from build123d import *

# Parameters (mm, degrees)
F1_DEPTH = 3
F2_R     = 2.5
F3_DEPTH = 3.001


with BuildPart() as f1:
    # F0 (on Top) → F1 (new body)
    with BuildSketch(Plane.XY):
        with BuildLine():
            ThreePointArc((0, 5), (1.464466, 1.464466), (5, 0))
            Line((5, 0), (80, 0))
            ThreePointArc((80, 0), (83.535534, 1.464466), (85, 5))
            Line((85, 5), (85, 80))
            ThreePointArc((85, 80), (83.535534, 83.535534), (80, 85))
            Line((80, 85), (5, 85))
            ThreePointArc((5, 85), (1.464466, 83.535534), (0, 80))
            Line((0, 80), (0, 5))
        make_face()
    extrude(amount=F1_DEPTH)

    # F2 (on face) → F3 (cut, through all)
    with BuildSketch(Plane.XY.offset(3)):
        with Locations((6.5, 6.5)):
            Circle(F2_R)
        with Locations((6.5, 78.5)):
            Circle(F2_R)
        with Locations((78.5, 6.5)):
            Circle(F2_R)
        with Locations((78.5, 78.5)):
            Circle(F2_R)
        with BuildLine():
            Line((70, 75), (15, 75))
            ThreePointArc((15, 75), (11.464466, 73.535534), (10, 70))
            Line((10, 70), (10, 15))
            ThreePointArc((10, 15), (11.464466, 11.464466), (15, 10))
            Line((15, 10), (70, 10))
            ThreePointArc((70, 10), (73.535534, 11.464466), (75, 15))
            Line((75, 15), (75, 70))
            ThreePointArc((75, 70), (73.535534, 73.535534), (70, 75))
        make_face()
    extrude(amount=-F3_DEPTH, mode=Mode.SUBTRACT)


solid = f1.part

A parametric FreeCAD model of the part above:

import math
import FreeCAD as App
import Part
import Sketcher
from FreeCAD import Vector
Q = App.Units.Quantity

doc = App.newDocument("Part")
params = doc.addObject("Spreadsheet::Sheet", "Params")
for row, (alias, value) in enumerate([
    ("sketch1_radius", "5 mm"),
    ("sketch1_width", "75 mm"),
    ("pad1_length", "3 mm"),
    ("sketch2_diameter", "5 mm"),
    ("sketch2_radius", "5 mm"),
    ("sketch2_width", "55 mm"),
], start=1):
    params.set(f"A{row}", alias)
    params.set(f"B{row}", "=" + value)
    params.setAlias(f"B{row}", alias)

body = doc.addObject("PartDesign::Body", "Body")

sketch1 = body.newObject("Sketcher::SketchObject", "Sketch")
sketch1.AttachmentSupport = (doc.getObject("XY_Plane"), [""])
sketch1.MapMode = "FlatFace"
sketch1.addGeometry([
    Part.ArcOfCircle(Part.Circle(Vector(5, 5, 0), Vector(0, 0, 1), 5), math.radians(180), math.radians(270)),
    Part.LineSegment(Vector(5, 0, 0), Vector(80, 0, 0)),
    Part.ArcOfCircle(Part.Circle(Vector(80, 5, 0), Vector(0, 0, 1), 5), math.radians(-90), math.radians(0)),
    Part.LineSegment(Vector(85, 5, 0), Vector(85, 80, 0)),
    Part.ArcOfCircle(Part.Circle(Vector(80, 80, 0), Vector(0, 0, 1), 5), math.radians(0), math.radians(90)),
    Part.LineSegment(Vector(80, 85, 0), Vector(5, 85, 0)),
    Part.ArcOfCircle(Part.Circle(Vector(5, 80, 0), Vector(0, 0, 1), 5), math.radians(90), math.radians(180)),
    Part.LineSegment(Vector(0, 80, 0), Vector(0, 5, 0)),
], False)
sketch1.addConstraint([
    Sketcher.Constraint("Tangent", 0, 2, 1, 1),
    Sketcher.Constraint("Tangent", 1, 2, 2, 1),
    Sketcher.Constraint("Tangent", 2, 2, 3, 1),
    Sketcher.Constraint("Tangent", 3, 2, 4, 1),
    Sketcher.Constraint("Tangent", 4, 2, 5, 1),
    Sketcher.Constraint("Tangent", 5, 2, 6, 1),
    Sketcher.Constraint("Tangent", 6, 2, 7, 1),
    Sketcher.Constraint("Tangent", 7, 2, 0, 1),
    Sketcher.Constraint("Horizontal", 1),
    Sketcher.Constraint("Vertical", 3),
    Sketcher.Constraint("Horizontal", 5),
    Sketcher.Constraint("Vertical", 7),
    Sketcher.Constraint("Equal", 0, 2),
    Sketcher.Constraint("Equal", 2, 4),
    Sketcher.Constraint("Equal", 4, 6),
    Sketcher.Constraint("PointOnObject", 0, 2, -1),
    Sketcher.Constraint("PointOnObject", 6, 2, -2),
    Sketcher.Constraint("Equal", 5, 3),
    Sketcher.Constraint("Radius", 0, Q("5 mm")),
    Sketcher.Constraint("DistanceX", 1, 1, 1, 2, Q("75 mm")),
])
sketch1.setExpression("Constraints[18]", "Params.sketch1_radius")
sketch1.setExpression("Constraints[19]", "Params.sketch1_width")
pad1 = body.newObject("PartDesign::Pad", "Pad")
pad1.Profile = sketch1
pad1.setExpression("Length", "Params.pad1_length")

sketch2 = body.newObject("Sketcher::SketchObject", "Sketch001")
sketch2.AttachmentSupport = (doc.getObject("XY_Plane"), [""])
sketch2.MapMode = "FlatFace"
sketch2.AttachmentOffset = App.Placement(Vector(0, 0, 3), App.Rotation())
sketch2.addGeometry([
    Part.Circle(Vector(6.5, 6.5, 0), Vector(0, 0, 1), 2.5),
    Part.Circle(Vector(6.5, 78.5, 0), Vector(0, 0, 1), 2.5),
    Part.Circle(Vector(78.5, 6.5, 0), Vector(0, 0, 1), 2.5),
    Part.Circle(Vector(78.5, 78.5, 0), Vector(0, 0, 1), 2.5),
    Part.LineSegment(Vector(70, 75, 0), Vector(15, 75, 0)),
    Part.ArcOfCircle(Part.Circle(Vector(15, 70, 0), Vector(0, 0, 1), 5), math.radians(90), math.radians(180)),
    Part.LineSegment(Vector(10, 70, 0), Vector(10, 15, 0)),
    Part.ArcOfCircle(Part.Circle(Vector(15, 15, 0), Vector(0, 0, 1), 5), math.radians(180), math.radians(270)),
    Part.LineSegment(Vector(15, 10, 0), Vector(70, 10, 0)),
    Part.ArcOfCircle(Part.Circle(Vector(70, 15, 0), Vector(0, 0, 1), 5), math.radians(-90), math.radians(0)),
    Part.LineSegment(Vector(75, 15, 0), Vector(75, 70, 0)),
    Part.ArcOfCircle(Part.Circle(Vector(70, 70, 0), Vector(0, 0, 1), 5), math.radians(0), math.radians(90)),
], False)
sketch2.addConstraint([
    Sketcher.Constraint("Tangent", 4, 2, 5, 1),
    Sketcher.Constraint("Tangent", 5, 2, 6, 1),
    Sketcher.Constraint("Tangent", 6, 2, 7, 1),
    Sketcher.Constraint("Tangent", 7, 2, 8, 1),
    Sketcher.Constraint("Tangent", 8, 2, 9, 1),
    Sketcher.Constraint("Tangent", 9, 2, 10, 1),
    Sketcher.Constraint("Tangent", 10, 2, 11, 1),
    Sketcher.Constraint("Tangent", 11, 2, 4, 1),
    Sketcher.Constraint("Horizontal", 4),
    Sketcher.Constraint("Vertical", 6),
    Sketcher.Constraint("Horizontal", 8),
    Sketcher.Constraint("Vertical", 10),
    Sketcher.Constraint("Equal", 0, 1),
    Sketcher.Constraint("Equal", 1, 2),
    Sketcher.Constraint("Equal", 2, 3),
    Sketcher.Constraint("Equal", 5, 7),
    Sketcher.Constraint("Equal", 7, 9),
    Sketcher.Constraint("Equal", 9, 11),
    Sketcher.Constraint("Horizontal", 0, 3, 2, 3),
    Sketcher.Constraint("Horizontal", 1, 3, 3, 3),
    Sketcher.Constraint("Vertical", 0, 3, 1, 3),
    Sketcher.Constraint("Vertical", 2, 3, 3, 3),
    Sketcher.Constraint("Equal", 8, 6),
    Sketcher.Constraint("Diameter", 0, Q("5 mm")),
    Sketcher.Constraint("Radius", 5, Q("5 mm")),
    Sketcher.Constraint("DistanceX", 4, 2, 4, 1, Q("55 mm")),
    Sketcher.Constraint("DistanceX", -1, 1, 5, 3, Q("15 mm")),
    Sketcher.Constraint("DistanceY", -1, 1, 5, 3, Q("70 mm")),
    Sketcher.Constraint("DistanceY", 0, 3, 1, 3, Q("72 mm")),
    Sketcher.Constraint("DistanceX", 0, 3, 2, 3, Q("72 mm")),
    Sketcher.Constraint("DistanceX", -1, 1, 0, 3, Q("6.5 mm")),
    Sketcher.Constraint("DistanceY", -1, 1, 0, 3, Q("6.5 mm")),
])
sketch2.setExpression("Constraints[23]", "Params.sketch2_diameter")
sketch2.setExpression("Constraints[24]", "Params.sketch2_radius")
sketch2.setExpression("Constraints[25]", "Params.sketch2_width")
pocket1 = body.newObject("PartDesign::Pocket", "Pocket")
pocket1.Profile = sketch2
pocket1.Type = "ThroughAll"

doc.recompute()
